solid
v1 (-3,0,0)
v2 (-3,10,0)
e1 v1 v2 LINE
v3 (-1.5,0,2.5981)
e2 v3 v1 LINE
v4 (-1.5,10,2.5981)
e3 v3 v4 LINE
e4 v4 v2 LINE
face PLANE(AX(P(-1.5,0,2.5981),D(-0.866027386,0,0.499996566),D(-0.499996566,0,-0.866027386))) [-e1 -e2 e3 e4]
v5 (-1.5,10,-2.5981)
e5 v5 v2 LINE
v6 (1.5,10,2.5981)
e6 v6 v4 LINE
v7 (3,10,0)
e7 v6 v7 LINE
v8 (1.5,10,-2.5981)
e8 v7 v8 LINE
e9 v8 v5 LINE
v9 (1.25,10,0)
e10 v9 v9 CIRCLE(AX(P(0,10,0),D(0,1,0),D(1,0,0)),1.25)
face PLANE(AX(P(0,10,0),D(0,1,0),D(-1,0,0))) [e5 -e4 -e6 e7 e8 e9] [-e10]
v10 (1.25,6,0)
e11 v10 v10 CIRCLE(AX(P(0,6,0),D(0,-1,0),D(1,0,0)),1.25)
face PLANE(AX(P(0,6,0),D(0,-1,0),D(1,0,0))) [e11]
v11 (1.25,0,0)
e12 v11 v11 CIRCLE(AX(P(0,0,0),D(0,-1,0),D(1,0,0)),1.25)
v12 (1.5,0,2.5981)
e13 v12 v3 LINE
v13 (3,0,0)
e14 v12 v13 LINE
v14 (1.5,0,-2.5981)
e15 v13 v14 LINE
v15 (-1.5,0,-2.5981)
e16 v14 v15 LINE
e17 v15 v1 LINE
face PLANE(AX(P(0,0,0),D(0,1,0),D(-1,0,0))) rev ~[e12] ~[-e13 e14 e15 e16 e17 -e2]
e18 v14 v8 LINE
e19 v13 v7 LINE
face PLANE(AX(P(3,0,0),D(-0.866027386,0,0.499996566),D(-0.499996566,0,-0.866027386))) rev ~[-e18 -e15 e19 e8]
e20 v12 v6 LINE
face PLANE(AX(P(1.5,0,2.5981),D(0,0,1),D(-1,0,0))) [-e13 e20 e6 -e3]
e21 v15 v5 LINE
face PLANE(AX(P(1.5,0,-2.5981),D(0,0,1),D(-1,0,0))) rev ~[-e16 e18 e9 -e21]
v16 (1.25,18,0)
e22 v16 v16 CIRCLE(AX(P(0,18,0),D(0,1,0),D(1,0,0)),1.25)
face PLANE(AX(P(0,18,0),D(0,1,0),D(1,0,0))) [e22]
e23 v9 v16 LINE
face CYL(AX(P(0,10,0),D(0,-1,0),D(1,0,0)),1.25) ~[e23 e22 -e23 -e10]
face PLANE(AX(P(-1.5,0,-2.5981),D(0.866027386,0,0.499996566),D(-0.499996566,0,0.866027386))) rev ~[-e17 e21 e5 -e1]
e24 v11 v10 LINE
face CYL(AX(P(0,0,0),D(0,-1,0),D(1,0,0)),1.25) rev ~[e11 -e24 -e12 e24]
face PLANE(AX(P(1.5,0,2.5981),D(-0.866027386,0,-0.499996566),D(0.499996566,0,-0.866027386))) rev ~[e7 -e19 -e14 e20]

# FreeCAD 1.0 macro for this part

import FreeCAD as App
import Part
import Sketcher
Q = App.Units.Quantity


def add_polygon(sketch, points):
    """Adds a closed chain of lines whose ends are joined by coincident constraints."""
    first, n = sketch.GeometryCount, len(points)
    for a, b in zip(points, points[1:] + points[:1]):
        sketch.addGeometry(Part.LineSegment(App.Vector(*a, 0), App.Vector(*b, 0)), False)
    for i in range(n):
        sketch.addConstraint(Sketcher.Constraint("Coincident", first + i, 2, first + (i + 1) % n, 1))

doc = App.newDocument("Part")
body = doc.addObject("PartDesign::Body", "Body")

# Sketch on XZ plane
sketch1 = doc.addObject("Sketcher::SketchObject", "Sketch")
body.addObject(sketch1)
sketch1.AttachmentSupport = (doc.XZ_Plane, [""])
sketch1.MapMode = "FlatFace"
add_polygon(sketch1, [(3, 0), (1.5, -2.6), (-1.5, -2.6), (-3, 0), (-1.5, 2.6), (1.5, 2.6)])  # lines 0-5
sketch1.addConstraint([
    Sketcher.Constraint("Horizontal", 1),
    Sketcher.Constraint("Horizontal", 4),
    Sketcher.Constraint("Symmetric", 0, 2, 3, 2, -1, 1),
    Sketcher.Constraint("Symmetric", 2, 2, 5, 2, -1, 1),
    Sketcher.Constraint("PointOnObject", 2, 2, -1),
    Sketcher.Constraint("Parallel", 2, 5),
    Sketcher.Constraint("Vertical", 1, 2, 3, 2),
    Sketcher.Constraint("DistanceX", 1, 2, 1, 1, Q("3 mm")),
    Sketcher.Constraint("Angle", 0, Q("-119.9998 deg")),
    Sketcher.Constraint("Distance", 0, Q("3 mm")),
])
pad1 = doc.addObject("PartDesign::Pad", "Pad")
body.addObject(pad1)
pad1.Profile = sketch1
pad1.Length = 10
pad1.Reversed = True

# Sketch on XZ plane
sketch2 = doc.addObject("Sketcher::SketchObject", "Sketch001")
body.addObject(sketch2)
sketch2.AttachmentSupport = (doc.XZ_Plane, [""])
sketch2.MapMode = "FlatFace"
sketch2.AttachmentOffset = App.Placement(App.Vector(0, 0, -10), App.Rotation())
sketch2.addGeometry(Part.Circle(App.Vector(0, 0, 0), App.Vector(0, 0, 1), 1.2), False)
sketch2.addConstraint([
    Sketcher.Constraint("Coincident", 0, 3, -1, 1),
    Sketcher.Constraint("Diameter", 0, Q("2.5 mm")),
])
pad2 = doc.addObject("PartDesign::Pad", "Pad001")
body.addObject(pad2)
pad2.Profile = sketch2
pad2.Length = 8
pad2.Reversed = True

# Sketch on XZ plane
sketch3 = doc.addObject("Sketcher::SketchObject", "Sketch002")
body.addObject(sketch3)
sketch3.AttachmentSupport = (doc.XZ_Plane, [""])
sketch3.MapMode = "FlatFace"
sketch3.addGeometry(Part.Circle(App.Vector(0, 0, 0), App.Vector(0, 0, 1), 1.2), False)
sketch3.addConstraint([
    Sketcher.Constraint("Coincident", 0, 3, -1, 1),
    Sketcher.Constraint("Diameter", 0, Q("2.5 mm")),
])
pocket1 = doc.addObject("PartDesign::Pocket", "Pocket")
body.addObject(pocket1)
pocket1.Profile = sketch3
pocket1.Length = 6

doc.recompute()
